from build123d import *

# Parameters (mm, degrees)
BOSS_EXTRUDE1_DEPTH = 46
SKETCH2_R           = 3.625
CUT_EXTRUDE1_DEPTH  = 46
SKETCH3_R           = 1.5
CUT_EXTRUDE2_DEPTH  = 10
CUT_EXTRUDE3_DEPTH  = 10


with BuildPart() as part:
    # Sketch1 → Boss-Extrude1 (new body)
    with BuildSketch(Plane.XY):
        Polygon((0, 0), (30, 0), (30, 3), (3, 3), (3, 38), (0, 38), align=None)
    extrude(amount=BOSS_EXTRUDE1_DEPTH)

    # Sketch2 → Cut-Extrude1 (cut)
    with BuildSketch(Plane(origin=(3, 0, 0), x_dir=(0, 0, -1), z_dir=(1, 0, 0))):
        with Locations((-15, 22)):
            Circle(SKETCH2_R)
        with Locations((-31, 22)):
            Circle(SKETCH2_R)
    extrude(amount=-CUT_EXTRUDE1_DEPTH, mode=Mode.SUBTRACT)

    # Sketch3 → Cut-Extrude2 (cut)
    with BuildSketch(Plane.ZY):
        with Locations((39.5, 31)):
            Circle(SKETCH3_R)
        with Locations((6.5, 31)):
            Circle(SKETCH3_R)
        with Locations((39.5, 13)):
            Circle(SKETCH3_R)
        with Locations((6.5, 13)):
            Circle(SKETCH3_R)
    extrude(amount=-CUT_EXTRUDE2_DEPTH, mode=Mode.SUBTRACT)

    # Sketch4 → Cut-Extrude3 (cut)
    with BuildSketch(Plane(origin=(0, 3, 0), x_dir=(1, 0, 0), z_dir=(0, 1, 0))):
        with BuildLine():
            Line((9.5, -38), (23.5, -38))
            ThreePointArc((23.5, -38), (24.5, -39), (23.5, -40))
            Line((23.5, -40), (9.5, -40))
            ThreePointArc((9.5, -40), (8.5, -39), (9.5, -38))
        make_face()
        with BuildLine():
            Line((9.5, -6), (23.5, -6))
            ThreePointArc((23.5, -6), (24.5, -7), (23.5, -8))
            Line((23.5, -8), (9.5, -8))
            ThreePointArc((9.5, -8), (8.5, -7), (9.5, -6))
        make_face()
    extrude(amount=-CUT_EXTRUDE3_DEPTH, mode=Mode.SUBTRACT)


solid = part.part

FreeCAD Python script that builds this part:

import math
import FreeCAD as App
import Part
import Sketcher

V = App.Vector
Q = App.Units.Quantity


def add_polygon(sketch, points):
    """Adds a closed chain of lines whose ends are joined by coincident constraints."""
    first, n = sketch.GeometryCount, len(points)
    for a, b in zip(points, points[1:] + points[:1]):
        sketch.addGeometry(Part.LineSegment(App.Vector(*a, 0), App.Vector(*b, 0)), False)
    for i in range(n):
        sketch.addConstraint(Sketcher.Constraint("Coincident", first + i, 2, first + (i + 1) % n, 1))

doc = App.newDocument("Part")
body = doc.addObject("PartDesign::Body", "Body")

sketch1 = body.newObject("Sketcher::SketchObject", "Sketch")
sketch1.AttachmentSupport = (doc.getObject("XY_Plane"), [""])
sketch1.MapMode = "FlatFace"
add_polygon(sketch1, [(0, 0), (30, 0), (30, 3), (3, 3), (3, 38), (0, 38)])
sketch1.addConstraint([
    Sketcher.Constraint("Horizontal", 0),
    Sketcher.Constraint("Vertical", 1),
    Sketcher.Constraint("Horizontal", 2),
    Sketcher.Constraint("Vertical", 3),
    Sketcher.Constraint("Horizontal", 4),
    Sketcher.Constraint("Vertical", 5),
    Sketcher.Constraint("Coincident", 5, 2, -1, 1),
    Sketcher.Constraint("Equal", 4, 1),
    Sketcher.Constraint("DistanceX", 0, 1, 0, 2, Q("30 mm")),
    Sketcher.Constraint("DistanceX", 2, 2, 2, 1, Q("27 mm")),
    Sketcher.Constraint("DistanceY", 3, 1, 3, 2, Q("35 mm")),
])
pad1 = body.newObject("PartDesign::Pad", "Pad")
pad1.Profile = sketch1
pad1.Length = 46

sketch2 = body.newObject("Sketcher::SketchObject", "Sketch001")
sketch2.AttachmentSupport = (doc.getObject("YZ_Plane"), [""])
sketch2.MapMode = "FlatFace"
sketch2.AttachmentOffset = App.Placement(V(0, 0, 3), App.Rotation())
sketch2.addGeometry([
    Part.Circle(V(22, 15, 0), V(0, 0, 1), 3.625),
    Part.Circle(V(22, 31, 0), V(0, 0, 1), 3.625),
], False)
sketch2.addConstraint([
    Sketcher.Constraint("Equal", 0, 1),
    Sketcher.Constraint("Vertical", 0, 3, 1, 3),
    Sketcher.Constraint("Diameter", 0, Q("7.25 mm")),
    Sketcher.Constraint("DistanceX", -1, 1, 0, 3, Q("22 mm")),
    Sketcher.Constraint("DistanceY", -1, 1, 0, 3, Q("15 mm")),
    Sketcher.Constraint("DistanceY", -1, 1, 1, 3, Q("31 mm")),
])
pocket1 = body.newObject("PartDesign::Pocket", "Pocket")
pocket1.Profile = sketch2
pocket1.Length = 46

sketch3 = body.newObject("Sketcher::SketchObject", "Sketch002")
sketch3.AttachmentSupport = (doc.getObject("YZ_Plane"), [""])
sketch3.MapMode = "FlatFace"
sketch3.addGeometry([
    Part.Circle(V(31, 39.5, 0), V(0, 0, 1), 1.5),
    Part.Circle(V(31, 6.5, 0), V(0, 0, 1), 1.5),
    Part.Circle(V(13, 39.5, 0), V(0, 0, 1), 1.5),
    Part.Circle(V(13, 6.5, 0), V(0, 0, 1), 1.5),
], False)
sketch3.addConstraint([
    Sketcher.Constraint("Equal", 0, 1),
    Sketcher.Constraint("Equal", 1, 2),
    Sketcher.Constraint("Equal", 2, 3),
    Sketcher.Constraint("Horizontal", 0, 3, 2, 3),
    Sketcher.Constraint("Horizontal", 1, 3, 3, 3),
    Sketcher.Constraint("Vertical", 0, 3, 1, 3),
    Sketcher.Constraint("Vertical", 2, 3, 3, 3),
    Sketcher.Constraint("Diameter", 0, Q("3 mm")),
    Sketcher.Constraint("DistanceX", -1, 1, 0, 3, Q("31 mm")),
    Sketcher.Constraint("DistanceX", -1, 1, 2, 3, Q("13 mm")),
    Sketcher.Constraint("DistanceY", 1, 3, 0, 3, Q("33 mm")),
    Sketcher.Constraint("DistanceY", -1, 1, 0, 3, Q("39.5 mm")),
])
pocket2 = body.newObject("PartDesign::Pocket", "Pocket001")
pocket2.Profile = sketch3
pocket2.Length = 10
pocket2.Reversed = True

sketch4 = body.newObject("Sketcher::SketchObject", "Sketch003")
sketch4.AttachmentSupport = (doc.getObject("XZ_Plane"), [""])
sketch4.MapMode = "FlatFace"
sketch4.AttachmentOffset = App.Placement(V(0, 0, -3), App.Rotation())
sketch4.addGeometry([
    Part.LineSegment(V(23.5, 38, 0), V(9.5, 38, 0)),
    Part.ArcOfCircle(Part.Circle(V(9.5, 39, 0), V(0, 0, 1), 1), math.radians(90), math.radians(270)),
    Part.LineSegment(V(9.5, 40, 0), V(23.5, 40, 0)),
    Part.ArcOfCircle(Part.Circle(V(23.5, 39, 0), V(0, 0, 1), 1), math.radians(-90), math.radians(90)),
    Part.LineSegment(V(23.5, 6, 0), V(9.5, 6, 0)),
    Part.ArcOfCircle(Part.Circle(V(9.5, 7, 0), V(0, 0, 1), 1), math.radians(90), math.radians(270)),
    Part.LineSegment(V(9.5, 8, 0), V(23.5, 8, 0)),
    Part.ArcOfCircle(Part.Circle(V(23.5, 7, 0), V(0, 0, 1), 1), math.radians(-90), math.radians(90)),
], False)
sketch4.addConstraint([
    Sketcher.Constraint("Tangent", 0, 2, 1, 2),
    Sketcher.Constraint("Tangent", 1, 1, 2, 1),
    Sketcher.Constraint("Tangent", 2, 2, 3, 2),
    Sketcher.Constraint("Tangent", 3, 1, 0, 1),
    Sketcher.Constraint("Tangent", 4, 2, 5, 2),
    Sketcher.Constraint("Tangent", 5, 1, 6, 1),
    Sketcher.Constraint("Tangent", 6, 2, 7, 2),
    Sketcher.Constraint("Tangent", 7, 1, 4, 1),
    Sketcher.Constraint("Horizontal", 0),
    Sketcher.Constraint("Horizontal", 2),
    Sketcher.Constraint("Horizontal", 4),
    Sketcher.Constraint("Horizontal", 6),
    Sketcher.Constraint("Equal", 3, 5),
    Sketcher.Constraint("Vertical", 1, 3, 5, 3),
    Sketcher.Constraint("Vertical", 3, 3, 7, 3),
    Sketcher.Constraint("Radius", 1, Q("1 mm")),
    Sketcher.Constraint("DistanceX", 0, 2, 0, 1, Q("14 mm")),
    Sketcher.Constraint("DistanceY", -1, 1, 1, 3, Q("39 mm")),
    Sketcher.Constraint("DistanceY", -1, 1, 5, 3, Q("7 mm")),
    Sketcher.Constraint("DistanceX", -1, 1, 1, 3, Q("9.5 mm")),
])
pocket3 = body.newObject("PartDesign::Pocket", "Pocket002")
pocket3.Profile = sketch4
pocket3.Length = 10
pocket3.Reversed = True

doc.recompute()
